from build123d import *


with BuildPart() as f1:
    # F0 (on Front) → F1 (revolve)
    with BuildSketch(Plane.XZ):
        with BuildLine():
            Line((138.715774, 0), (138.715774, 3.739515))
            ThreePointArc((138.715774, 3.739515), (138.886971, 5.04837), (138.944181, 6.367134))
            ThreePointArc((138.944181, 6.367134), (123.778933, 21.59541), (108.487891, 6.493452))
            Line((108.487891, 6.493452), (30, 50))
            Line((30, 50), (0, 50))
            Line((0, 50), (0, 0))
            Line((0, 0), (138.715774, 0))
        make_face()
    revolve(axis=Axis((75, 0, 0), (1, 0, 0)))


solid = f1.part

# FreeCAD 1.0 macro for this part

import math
import FreeCAD as App
import Part
import Sketcher
from FreeCAD import Vector
Q = App.Units.Quantity

doc = App.newDocument("Part")
body = doc.addObject("PartDesign::Body", "Body")

# Sketch on XZ plane
sketch1 = body.newObject("Sketcher::SketchObject", "Sketch")
sketch1.AttachmentSupport = (doc.getObject("XZ_Plane"), [""])
sketch1.MapMode = "FlatFace"
sketch1.addGeometry([
    Part.LineSegment(Vector(138.7, 0, 0), Vector(138.7, 3.7, 0)),  # 0
    Part.ArcOfCircle(Part.Circle(Vector(123.7, 6.4, 0), Vector(0, 0, 1), 15.2), math.radians(-9.94), math.radians(0)),  # 1
    Part.ArcOfCircle(Part.Circle(Vector(123.7, 6.4, 0), Vector(0, 0, 1), 15.2), math.radians(0), math.radians(180)),  # 2
    Part.LineSegment(Vector(108.5, 6.5, 0), Vector(30, 50, 0)),  # 3
    Part.LineSegment(Vector(30, 50, 0), Vector(0, 50, 0)),  # 4
    Part.LineSegment(Vector(0, 50, 0), Vector(0, 0, 0)),  # 5
    Part.LineSegment(Vector(0, 0, 0), Vector(138.7, 0, 0)),  # 6
], False)
sketch1.addConstraint([
    Sketcher.Constraint("Coincident", 0, 2, 1, 1),
    Sketcher.Constraint("Tangent", 1, 2, 2, 1),
    Sketcher.Constraint("Coincident", 2, 2, 3, 1),
    Sketcher.Constraint("Coincident", 3, 2, 4, 1),
    Sketcher.Constraint("Coincident", 4, 2, 5, 1),
    Sketcher.Constraint("Coincident", 5, 2, 6, 1),
    Sketcher.Constraint("Coincident", 6, 2, 0, 1),
    Sketcher.Constraint("Vertical", 0),
    Sketcher.Constraint("Horizontal", 4),
    Sketcher.Constraint("Vertical", 5),
    Sketcher.Constraint("Horizontal", 6),
    Sketcher.Constraint("Coincident", 5, 2, -1, 1),
    Sketcher.Constraint("Horizontal", 2, 3, 1, 2),
    Sketcher.Constraint("DistanceX", 4, 2, 4, 1, 30.0),
    Sketcher.Constraint("DistanceY", 5, 2, 5, 1, 50.0),
    Sketcher.Constraint("Angle", 3, Q("151 deg")),
    Sketcher.Constraint("DistanceX", 2, 3, 0, 2, 15.0),
    Sketcher.Constraint("Radius", 1, 15.228614),
    Sketcher.Constraint("Radius", 2, 15.228407),
    Sketcher.Constraint("DistanceY", 1, 3, 2, 2, 0.1263),
    Sketcher.Constraint("Distance", 3, 89.739449),
])
revolution = body.newObject("PartDesign::Revolution", "Revolution")
revolution.Profile = sketch1
revolution.ReferenceAxis = (sketch1, ["H_Axis"])
revolution.Angle = 360

doc.recompute()
